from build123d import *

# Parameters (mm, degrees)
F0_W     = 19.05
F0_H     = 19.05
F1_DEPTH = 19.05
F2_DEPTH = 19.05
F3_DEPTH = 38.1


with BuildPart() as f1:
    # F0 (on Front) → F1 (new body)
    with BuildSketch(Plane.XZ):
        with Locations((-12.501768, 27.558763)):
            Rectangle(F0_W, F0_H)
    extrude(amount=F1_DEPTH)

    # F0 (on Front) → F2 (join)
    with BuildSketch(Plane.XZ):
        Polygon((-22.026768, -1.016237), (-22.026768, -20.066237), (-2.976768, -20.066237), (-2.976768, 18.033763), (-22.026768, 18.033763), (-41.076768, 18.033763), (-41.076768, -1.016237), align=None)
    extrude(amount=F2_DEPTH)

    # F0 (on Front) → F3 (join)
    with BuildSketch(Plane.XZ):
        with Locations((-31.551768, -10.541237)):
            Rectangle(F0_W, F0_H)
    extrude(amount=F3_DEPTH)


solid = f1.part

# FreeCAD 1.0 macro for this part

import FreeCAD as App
import Part
import Sketcher
Q = App.Units.Quantity


def add_polygon(sketch, points):
    """Adds a closed chain of lines whose ends are joined by coincident constraints."""
    first, n = sketch.GeometryCount, len(points)
    for a, b in zip(points, points[1:] + points[:1]):
        sketch.addGeometry(Part.LineSegment(App.Vector(*a, 0), App.Vector(*b, 0)), False)
    for i in range(n):
        sketch.addConstraint(Sketcher.Constraint("Coincident", first + i, 2, first + (i + 1) % n, 1))

doc = App.newDocument("Part")
body = doc.addObject("PartDesign::Body", "Body")

# Sketch on XZ plane
sketch1 = doc.addObject("Sketcher::SketchObject", "Sketch")
body.addObject(sketch1)
sketch1.AttachmentSupport = (doc.XZ_Plane, [""])
sketch1.MapMode = "FlatFace"
add_polygon(sketch1, [(-22, 37), (-22, 18), (-3, 18), (-3, 37)])  # lines 0-3
sketch1.addConstraint([
    Sketcher.Constraint("Vertical", 0),
    Sketcher.Constraint("Horizontal", 1),
    Sketcher.Constraint("Vertical", 2),
    Sketcher.Constraint("Horizontal", 3),
    Sketcher.Constraint("Equal", 3, 0),
    Sketcher.Constraint("DistanceX", 1, 1, 1, 2, Q("0.75 in")),
    Sketcher.Constraint("DistanceX", 0, 2, -1, 1, 22.026768),
    Sketcher.Constraint("DistanceY", -1, 1, 0, 2, 18.033763),
])
pad1 = doc.addObject("PartDesign::Pad", "Pad")
body.addObject(pad1)
pad1.Profile = sketch1
pad1.Length = Q("0.75 in")

# Sketch on XZ plane
sketch2 = doc.addObject("Sketcher::SketchObject", "Sketch001")
body.addObject(sketch2)
sketch2.AttachmentSupport = (doc.XZ_Plane, [""])
sketch2.MapMode = "FlatFace"
add_polygon(sketch2, [(-22, -1), (-22, -20), (-3, -20), (-3, 18), (-41, 18), (-41, -1)])  # lines 0-5
sketch2.addConstraint([
    Sketcher.Constraint("Vertical", 0),
    Sketcher.Constraint("Horizontal", 1),
    Sketcher.Constraint("Vertical", 2),
    Sketcher.Constraint("Horizontal", 3),
    Sketcher.Constraint("Vertical", 4),
    Sketcher.Constraint("Horizontal", 5),
    Sketcher.Constraint("Equal", 1, 5),
    Sketcher.Constraint("Equal", 5, 0),
    Sketcher.Constraint("Equal", 3, 2),
    Sketcher.Constraint("DistanceX", 3, 2, 3, 1, Q("1.5 in")),
    Sketcher.Constraint("DistanceX", 0, 2, -1, 1, 22.026768),
    Sketcher.Constraint("DistanceY", 0, 2, -1, 1, 20.066237),
])
pad2 = doc.addObject("PartDesign::Pad", "Pad001")
body.addObject(pad2)
pad2.Profile = sketch2
pad2.Length = Q("0.75 in")

# Sketch on XZ plane
sketch3 = doc.addObject("Sketcher::SketchObject", "Sketch002")
body.addObject(sketch3)
sketch3.AttachmentSupport = (doc.XZ_Plane, [""])
sketch3.MapMode = "FlatFace"
add_polygon(sketch3, [(-41, -1), (-41, -20), (-22, -20), (-22, -1)])  # lines 0-3
sketch3.addConstraint([
    Sketcher.Constraint("Vertical", 0),
    Sketcher.Constraint("Horizontal", 1),
    Sketcher.Constraint("Vertical", 2),
    Sketcher.Constraint("Horizontal", 3),
    Sketcher.Constraint("Equal", 3, 0),
    Sketcher.Constraint("DistanceX", 1, 1, 1, 2, Q("0.75 in")),
    Sketcher.Constraint("DistanceX", 1, 2, -1, 1, 22.026768),
    Sketcher.Constraint("DistanceY", 0, 2, -1, 1, 20.066237),
])
pad3 = doc.addObject("PartDesign::Pad", "Pad002")
body.addObject(pad3)
pad3.Profile = sketch3
pad3.Length = Q("1.5 in")

doc.recompute()
